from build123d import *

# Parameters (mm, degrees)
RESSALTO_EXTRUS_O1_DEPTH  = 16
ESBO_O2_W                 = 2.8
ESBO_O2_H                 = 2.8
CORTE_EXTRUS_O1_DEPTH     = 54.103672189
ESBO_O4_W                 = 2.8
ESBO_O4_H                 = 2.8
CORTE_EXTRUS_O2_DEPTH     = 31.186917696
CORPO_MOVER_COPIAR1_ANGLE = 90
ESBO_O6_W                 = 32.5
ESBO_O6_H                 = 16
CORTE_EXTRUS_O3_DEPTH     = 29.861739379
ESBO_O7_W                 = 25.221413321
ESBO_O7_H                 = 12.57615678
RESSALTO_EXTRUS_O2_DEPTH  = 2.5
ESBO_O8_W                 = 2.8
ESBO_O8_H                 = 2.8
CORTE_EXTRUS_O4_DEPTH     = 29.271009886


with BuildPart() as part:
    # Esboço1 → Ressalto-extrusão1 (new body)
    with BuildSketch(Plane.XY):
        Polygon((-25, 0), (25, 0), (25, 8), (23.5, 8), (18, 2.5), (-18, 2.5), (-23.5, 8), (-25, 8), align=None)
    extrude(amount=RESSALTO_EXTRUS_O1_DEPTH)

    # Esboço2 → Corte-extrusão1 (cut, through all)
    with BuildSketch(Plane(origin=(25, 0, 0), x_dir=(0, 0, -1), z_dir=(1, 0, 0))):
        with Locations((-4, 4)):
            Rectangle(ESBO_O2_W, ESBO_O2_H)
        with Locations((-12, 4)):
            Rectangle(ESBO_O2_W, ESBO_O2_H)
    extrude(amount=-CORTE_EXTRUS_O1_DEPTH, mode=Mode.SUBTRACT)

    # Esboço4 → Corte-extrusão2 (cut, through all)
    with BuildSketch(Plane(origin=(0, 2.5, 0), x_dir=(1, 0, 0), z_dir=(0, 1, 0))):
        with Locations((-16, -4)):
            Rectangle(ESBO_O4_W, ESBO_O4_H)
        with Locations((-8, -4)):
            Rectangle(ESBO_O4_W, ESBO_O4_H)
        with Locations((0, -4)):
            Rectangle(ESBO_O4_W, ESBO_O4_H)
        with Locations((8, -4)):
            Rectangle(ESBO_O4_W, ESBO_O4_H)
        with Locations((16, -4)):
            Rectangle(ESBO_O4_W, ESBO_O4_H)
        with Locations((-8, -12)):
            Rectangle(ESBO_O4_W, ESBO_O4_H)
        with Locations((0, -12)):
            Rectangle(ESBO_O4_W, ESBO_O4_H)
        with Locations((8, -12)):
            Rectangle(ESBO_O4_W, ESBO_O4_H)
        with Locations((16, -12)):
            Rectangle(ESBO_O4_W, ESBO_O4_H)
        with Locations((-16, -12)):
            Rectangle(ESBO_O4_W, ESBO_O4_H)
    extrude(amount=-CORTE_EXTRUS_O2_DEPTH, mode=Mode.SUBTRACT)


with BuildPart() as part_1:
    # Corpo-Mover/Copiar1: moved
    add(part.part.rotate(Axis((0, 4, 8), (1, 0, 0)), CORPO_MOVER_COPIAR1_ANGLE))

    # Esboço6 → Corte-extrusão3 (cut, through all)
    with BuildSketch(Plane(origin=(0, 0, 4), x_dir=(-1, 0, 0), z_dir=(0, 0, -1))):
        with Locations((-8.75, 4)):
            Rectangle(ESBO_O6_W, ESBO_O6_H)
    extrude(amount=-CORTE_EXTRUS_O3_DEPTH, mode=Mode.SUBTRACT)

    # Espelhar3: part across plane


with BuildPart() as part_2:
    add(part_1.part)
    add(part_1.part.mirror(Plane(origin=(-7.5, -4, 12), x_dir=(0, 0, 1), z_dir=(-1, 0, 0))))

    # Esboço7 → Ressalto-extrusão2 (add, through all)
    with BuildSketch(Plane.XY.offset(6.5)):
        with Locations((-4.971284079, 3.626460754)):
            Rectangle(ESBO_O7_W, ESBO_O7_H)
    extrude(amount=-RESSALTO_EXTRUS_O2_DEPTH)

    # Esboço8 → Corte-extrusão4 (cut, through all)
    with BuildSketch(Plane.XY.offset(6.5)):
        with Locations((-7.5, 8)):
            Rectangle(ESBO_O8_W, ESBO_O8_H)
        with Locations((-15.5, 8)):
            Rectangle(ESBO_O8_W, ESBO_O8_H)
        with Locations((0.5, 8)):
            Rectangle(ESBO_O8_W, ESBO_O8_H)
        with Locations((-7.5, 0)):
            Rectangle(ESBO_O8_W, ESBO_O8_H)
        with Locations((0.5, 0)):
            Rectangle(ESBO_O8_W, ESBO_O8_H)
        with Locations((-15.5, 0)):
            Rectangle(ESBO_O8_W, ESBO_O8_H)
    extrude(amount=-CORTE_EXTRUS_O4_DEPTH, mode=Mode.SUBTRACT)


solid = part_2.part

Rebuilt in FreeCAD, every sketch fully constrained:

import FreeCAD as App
import Part
import Sketcher

V = App.Vector
Q = App.Units.Quantity


def add_polygon(sketch, points):
    """Adds a closed chain of lines whose ends are joined by coincident constraints."""
    first, n = sketch.GeometryCount, len(points)
    for a, b in zip(points, points[1:] + points[:1]):
        sketch.addGeometry(Part.LineSegment(App.Vector(*a, 0), App.Vector(*b, 0)), False)
    for i in range(n):
        sketch.addConstraint(Sketcher.Constraint("Coincident", first + i, 2, first + (i + 1) % n, 1))

doc = App.newDocument("Part")
body = doc.addObject("PartDesign::Body", "Body")

# Sketch on XY plane
sketch1 = body.newObject("Sketcher::SketchObject", "Sketch")
sketch1.AttachmentSupport = (doc.getObject("XY_Plane"), [""])
sketch1.MapMode = "FlatFace"
add_polygon(sketch1, [(-25, 0), (25, 0), (25, 8), (23.5, 8), (18, 2.5), (-18, 2.5), (-23.5, 8), (-25, 8)])  # lines 0-7
sketch1.addConstraint([
    Sketcher.Constraint("Horizontal", 0),
    Sketcher.Constraint("Vertical", 1),
    Sketcher.Constraint("Horizontal", 2),
    Sketcher.Constraint("Horizontal", 4),
    Sketcher.Constraint("Horizontal", 6),
    Sketcher.Constraint("Vertical", 7),
    Sketcher.Constraint("Symmetric", 0, 2, 7, 2, -1, 1),
    Sketcher.Constraint("Symmetric", 2, 2, 5, 2, -2),
    Sketcher.Constraint("Perpendicular", 3, 5),
    Sketcher.Constraint("Equal", 3, 5),
    Sketcher.Constraint("DistanceX", 0, 1, 0, 2, Q("50 mm")),
    Sketcher.Constraint("DistanceX", 4, 2, 4, 1, Q("36 mm")),
    Sketcher.Constraint("DistanceY", 1, 1, 1, 2, Q("8 mm")),
    Sketcher.Constraint("DistanceX", 2, 2, 2, 1, Q("1.5 mm")),
])
pad1 = body.newObject("PartDesign::Pad", "Pad")
pad1.Profile = sketch1
pad1.Length = 16

# Sketch on YZ plane
sketch2 = body.newObject("Sketcher::SketchObject", "Sketch001")
sketch2.AttachmentSupport = (doc.getObject("YZ_Plane"), [""])
sketch2.MapMode = "FlatFace"
sketch2.AttachmentOffset = App.Placement(V(0, 0, 25), App.Rotation())
add_polygon(sketch2, [(5.4, 5.4), (2.6, 5.4), (2.6, 2.6), (5.4, 2.6)])  # lines 0-3
add_polygon(sketch2, [(5.4, 13.4), (2.6, 13.4), (2.6, 10.6), (5.4, 10.6)])  # lines 4-7
sketch2.addConstraint([
    Sketcher.Constraint("Horizontal", 0),
    Sketcher.Constraint("Vertical", 1),
    Sketcher.Constraint("Horizontal", 2),
    Sketcher.Constraint("Vertical", 3),
    Sketcher.Constraint("Horizontal", 4),
    Sketcher.Constraint("Vertical", 5),
    Sketcher.Constraint("Horizontal", 6),
    Sketcher.Constraint("Vertical", 7),
    Sketcher.Constraint("Vertical", 1, 2, 4, 2),
    Sketcher.Constraint("Vertical", 3, 2, 6, 2),
    Sketcher.Constraint("Equal", 6, 1),
    Sketcher.Constraint("Equal", 3, 5),
    Sketcher.Constraint("DistanceX", 0, 2, 0, 1, Q("2.8 mm")),
    Sketcher.Constraint("DistanceY", 0, 2, 4, 2, Q("8 mm")),
    Sketcher.Constraint("DistanceX", -1, 1, 0, 2, Q("2.6 mm")),
    Sketcher.Constraint("DistanceY", -1, 1, 0, 2, Q("5.4 mm")),
])
pocket1 = body.newObject("PartDesign::Pocket", "Pocket")
pocket1.Profile = sketch2
pocket1.Type = "ThroughAll"

# Sketch on XZ plane
sketch3 = body.newObject("Sketcher::SketchObject", "Sketch002")
sketch3.AttachmentSupport = (doc.getObject("XZ_Plane"), [""])
sketch3.MapMode = "FlatFace"
sketch3.AttachmentOffset = App.Placement(V(0, 0, -2.5), App.Rotation())
add_polygon(sketch3, [(-17.4, 2.6), (-17.4, 5.4), (-14.6, 5.4), (-14.6, 2.6)])  # lines 0-3
add_polygon(sketch3, [(-9.4, 2.6), (-9.4, 5.4), (-6.6, 5.4), (-6.6, 2.6)])  # lines 4-7
add_polygon(sketch3, [(-1.4, 2.6), (-1.4, 5.4), (1.4, 5.4), (1.4, 2.6)])  # lines 8-11
add_polygon(sketch3, [(6.6, 2.6), (6.6, 5.4), (9.4, 5.4), (9.4, 2.6)])  # lines 12-15
add_polygon(sketch3, [(14.6, 2.6), (14.6, 5.4), (17.4, 5.4), (17.4, 2.6)])  # lines 16-19
add_polygon(sketch3, [(-9.4, 10.6), (-9.4, 13.4), (-6.6, 13.4), (-6.6, 10.6)])  # lines 20-23
add_polygon(sketch3, [(-1.4, 10.6), (-1.4, 13.4), (1.4, 13.4), (1.4, 10.6)])  # lines 24-27
add_polygon(sketch3, [(6.6, 10.6), (6.6, 13.4), (9.4, 13.4), (9.4, 10.6)])  # lines 28-31
add_polygon(sketch3, [(14.6, 10.6), (14.6, 13.4), (17.4, 13.4), (17.4, 10.6)])  # lines 32-35
add_polygon(sketch3, [(-17.4, 10.6), (-17.4, 13.4), (-14.6, 13.4), (-14.6, 10.6)])  # lines 36-39
sketch3.addConstraint([
    Sketcher.Constraint("Vertical", 0),
    Sketcher.Constraint("Horizontal", 1),
    Sketcher.Constraint("Vertical", 2),
    Sketcher.Constraint("Horizontal", 3),
    Sketcher.Constraint("Vertical", 4),
    Sketcher.Constraint("Horizontal", 5),
    Sketcher.Constraint("Vertical", 6),
    Sketcher.Constraint("Horizontal", 7),
    Sketcher.Constraint("Vertical", 8),
    Sketcher.Constraint("Horizontal", 9),
    Sketcher.Constraint("Vertical", 10),
    Sketcher.Constraint("Horizontal", 11),
    Sketcher.Constraint("Vertical", 12),
    Sketcher.Constraint("Horizontal", 13),
    Sketcher.Constraint("Vertical", 14),
    Sketcher.Constraint("Horizontal", 15),
    Sketcher.Constraint("Vertical", 16),
    Sketcher.Constraint("Horizontal", 17),
    Sketcher.Constraint("Vertical", 18),
    Sketcher.Constraint("Horizontal", 19),
    Sketcher.Constraint("Vertical", 20),
    Sketcher.Constraint("Horizontal", 21),
    Sketcher.Constraint("Vertical", 22),
    Sketcher.Constraint("Horizontal", 23),
    Sketcher.Constraint("Vertical", 24),
    Sketcher.Constraint("Horizontal", 25),
    Sketcher.Constraint("Vertical", 26),
    Sketcher.Constraint("Horizontal", 27),
    Sketcher.Constraint("Vertical", 28),
    Sketcher.Constraint("Horizontal", 29),
    Sketcher.Constraint("Vertical", 30),
    Sketcher.Constraint("Horizontal", 31),
    Sketcher.Constraint("Vertical", 32),
    Sketcher.Constraint("Horizontal", 33),
    Sketcher.Constraint("Vertical", 34),
    Sketcher.Constraint("Horizontal", 35),
    Sketcher.Constraint("Vertical", 36),
    Sketcher.Constraint("Horizontal", 37),
    Sketcher.Constraint("Vertical", 38),
    Sketcher.Constraint("Horizontal", 39),
    Sketcher.Constraint("Symmetric", 5, 2, 12, 2, -2),
    Sketcher.Constraint("Symmetric", 7, 2, 14, 2, -2),
    Sketcher.Constraint("Symmetric", 1, 2, 16, 2, -2),
    Sketcher.Constraint("Symmetric", 3, 2, 18, 2, -2),
    Sketcher.Constraint("Symmetric", 21, 2, 28, 2, -2),
    Sketcher.Constraint("Symmetric", 23, 2, 30, 2, -2),
    Sketcher.Constraint("Symmetric", 33, 2, 36, 2, -2),
    Sketcher.Constraint("Symmetric", 35, 2, 38, 2, -2),
    Sketcher.Constraint("Horizontal", 1, 2, 4, 2),
    Sketcher.Constraint("Horizontal", 3, 2, 6, 2),
    Sketcher.Constraint("Horizontal", 5, 2, 8, 2),
    Sketcher.Constraint("Horizontal", 7, 2, 10, 2),
    Sketcher.Constraint("Horizontal", 21, 2, 24, 2),
    Sketcher.Constraint("Horizontal", 23, 2, 26, 2),
    Sketcher.Constraint("Horizontal", 29, 2, 32, 2),
    Sketcher.Constraint("Horizontal", 31, 2, 34, 2),
    Sketcher.Constraint("Vertical", 7, 2, 20, 2),
    Sketcher.Constraint("Vertical", 6, 2, 21, 2),
    Sketcher.Constraint("Vertical", 11, 2, 24, 2),
    Sketcher.Constraint("Vertical", 10, 2, 25, 2),
    Sketcher.Constraint("Vertical", 19, 2, 32, 2),
    Sketcher.Constraint("Vertical", 18, 2, 33, 2),
    Sketcher.Constraint("Equal", 3, 5),
    Sketcher.Constraint("Equal", 7, 9),
    Sketcher.Constraint("Equal", 39, 0),
    Sketcher.Constraint("Equal", 18, 20),
    Sketcher.Constraint("DistanceX", 1, 1, 1, 2, Q("2.8 mm")),
    Sketcher.Constraint("DistanceX", 0, 2, 4, 2, Q("8 mm")),
    Sketcher.Constraint("DistanceX", 4, 2, 8, 2, Q("8 mm")),
    Sketcher.Constraint("DistanceX", 8, 2, 12, 2, Q("8 mm")),
    Sketcher.Constraint("DistanceY", 4, 2, 20, 2, Q("8 mm")),
    Sketcher.Constraint("DistanceY", -1, 1, 0, 2, Q("5.4 mm")),
])
pocket2 = body.newObject("PartDesign::Pocket", "Pocket001")
pocket2.Profile = sketch3
pocket2.Type = "ThroughAll"
pocket2.Reversed = True
body2 = doc.addObject("PartDesign::Body", "Body001")
doc.recompute()

body.Placement = App.Placement(V(0, 12, 4), App.Rotation(V(1, 0, 0), 90))
boolean = body2.newObject("PartDesign::Boolean", "Boolean")
boolean.Type = "Fuse"
boolean.addObjects([body])

# Sketch on XY plane
sketch4 = body2.newObject("Sketcher::SketchObject", "Sketch003")
sketch4.AttachmentSupport = (doc.getObject("XY_Plane001"), [""])
sketch4.MapMode = "FlatFace"
sketch4.AttachmentOffset = App.Placement(V(0, 0, 4), App.Rotation())
add_polygon(sketch4, [(25, 12), (25, -4), (-8, -4), (-8, 12)])  # lines 0-3
sketch4.addConstraint([
    Sketcher.Constraint("Vertical", 0),
    Sketcher.Constraint("Horizontal", 1),
    Sketcher.Constraint("Vertical", 2),
    Sketcher.Constraint("Horizontal", 3),
    Sketcher.Constraint("DistanceY", 0, 2, 0, 1, Q("16 mm")),
    Sketcher.Constraint("DistanceX", 1, 2, 1, 1, Q("32.5 mm")),
    Sketcher.Constraint("DistanceX", -1, 1, 0, 2, Q("25 mm")),
    Sketcher.Constraint("DistanceY", 0, 2, -1, 1, Q("4 mm")),
])
pocket3 = body2.newObject("PartDesign::Pocket", "Pocket002")
pocket3.Profile = sketch4
pocket3.Type = "ThroughAll"
pocket3.Reversed = True
body3 = doc.addObject("PartDesign::Body", "Body002")
doc.recompute()

body3.BaseFeature = body2
doc.recompute()

mirroring = doc.addObject("Part::Mirroring", "Mirroring")
mirroring.Source = body2
mirroring.Base = V(-7.5, -4, 12)
mirroring.Normal = V(-1, 0, 0)
body4 = doc.addObject("PartDesign::Body", "Body003")
body4.BaseFeature = mirroring
boolean2 = body3.newObject("PartDesign::Boolean", "Boolean001")
boolean2.Type = "Fuse"
boolean2.addObjects([body4])
doc.recompute()

# Sketch on XY plane
sketch5 = body3.newObject("Sketcher::SketchObject", "Sketch004")
sketch5.AttachmentSupport = (doc.getObject("XY_Plane002"), [""])
sketch5.MapMode = "FlatFace"
sketch5.AttachmentOffset = App.Placement(V(0, 0, 6.5), App.Rotation())
add_polygon(sketch5, [(-18, 10), (-18, -3), (8, -3), (8, 10)])  # lines 0-3
sketch5.addConstraint([
    Sketcher.Constraint("Vertical", 0),
    Sketcher.Constraint("Horizontal", 1),
    Sketcher.Constraint("Vertical", 2),
    Sketcher.Constraint("Horizontal", 3),
    Sketcher.Constraint("DistanceX", 1, 1, 1, 2, Q("25.221413 mm")),
    Sketcher.Constraint("DistanceY", 0, 2, 0, 1, Q("12.576157 mm")),
    Sketcher.Constraint("DistanceX", 0, 2, -1, 1, Q("17.581991 mm")),
    Sketcher.Constraint("DistanceY", -1, 1, 2, 2, Q("9.914539 mm")),
])
pad2 = body3.newObject("PartDesign::Pad", "Pad001")
pad2.Profile = sketch5
pad2.Type = "UpToLast"
pad2.Reversed = True

# Sketch on XY plane
sketch6 = body3.newObject("Sketcher::SketchObject", "Sketch005")
sketch6.AttachmentSupport = (doc.getObject("XY_Plane002"), [""])
sketch6.MapMode = "FlatFace"
sketch6.AttachmentOffset = App.Placement(V(0, 0, 6.5), App.Rotation())
add_polygon(sketch6, [(-8.9, 9.4), (-8.9, 6.6), (-6.1, 6.6), (-6.1, 9.4)])  # lines 0-3
add_polygon(sketch6, [(-16.9, 9.4), (-16.9, 6.6), (-14.1, 6.6), (-14.1, 9.4)])  # lines 4-7
add_polygon(sketch6, [(-0.9, 9.4), (-0.9, 6.6), (1.9, 6.6), (1.9, 9.4)])  # lines 8-11
add_polygon(sketch6, [(-8.9, 1.4), (-8.9, -1.4), (-6.1, -1.4), (-6.1, 1.4)])  # lines 12-15
add_polygon(sketch6, [(-0.9, 1.4), (-0.9, -1.4), (1.9, -1.4), (1.9, 1.4)])  # lines 16-19
add_polygon(sketch6, [(-16.9, 1.4), (-16.9, -1.4), (-14.1, -1.4), (-14.1, 1.4)])  # lines 20-23
sketch6.addConstraint([
    Sketcher.Constraint("Vertical", 0),
    Sketcher.Constraint("Horizontal", 1),
    Sketcher.Constraint("Vertical", 2),
    Sketcher.Constraint("Horizontal", 3),
    Sketcher.Constraint("Vertical", 4),
    Sketcher.Constraint("Horizontal", 5),
    Sketcher.Constraint("Vertical", 6),
    Sketcher.Constraint("Horizontal", 7),
    Sketcher.Constraint("Vertical", 8),
    Sketcher.Constraint("Horizontal", 9),
    Sketcher.Constraint("Vertical", 10),
    Sketcher.Constraint("Horizontal", 11),
    Sketcher.Constraint("Vertical", 12),
    Sketcher.Constraint("Horizontal", 13),
    Sketcher.Constraint("Vertical", 14),
    Sketcher.Constraint("Horizontal", 15),
    Sketcher.Constraint("Vertical", 16),
    Sketcher.Constraint("Horizontal", 17),
    Sketcher.Constraint("Vertical", 18),
    Sketcher.Constraint("Horizontal", 19),
    Sketcher.Constraint("Vertical", 20),
    Sketcher.Constraint("Horizontal", 21),
    Sketcher.Constraint("Vertical", 22),
    Sketcher.Constraint("Horizontal", 23),
    Sketcher.Constraint("Horizontal", 1, 2, 4, 2),
    Sketcher.Constraint("Horizontal", 3, 2, 6, 2),
    Sketcher.Constraint("Horizontal", 5, 2, 8, 2),
    Sketcher.Constraint("Horizontal", 7, 2, 10, 2),
    Sketcher.Constraint("Horizontal", 13, 2, 16, 2),
    Sketcher.Constraint("Horizontal", 15, 2, 18, 2),
    Sketcher.Constraint("Horizontal", 17, 2, 20, 2),
    Sketcher.Constraint("Horizontal", 19, 2, 22, 2),
    Sketcher.Constraint("Vertical", 3, 2, 12, 2),
    Sketcher.Constraint("Vertical", 2, 2, 13, 2),
    Sketcher.Constraint("Vertical", 11, 2, 16, 2),
    Sketcher.Constraint("Vertical", 10, 2, 17, 2),
    Sketcher.Constraint("Vertical", 7, 2, 20, 2),
    Sketcher.Constraint("Vertical", 6, 2, 21, 2),
    Sketcher.Constraint("Equal", 3, 5),
    Sketcher.Constraint("Equal", 7, 9),
    Sketcher.Constraint("Equal", 23, 0),
    Sketcher.Constraint("Equal", 10, 12),
    Sketcher.Constraint("DistanceX", 1, 1, 1, 2, Q("2.8 mm")),
    Sketcher.Constraint("DistanceX", 4, 2, 0, 2, Q("8 mm")),
    Sketcher.Constraint("DistanceX", 0, 2, 8, 2, Q("8 mm")),
    Sketcher.Constraint("DistanceY", 12, 2, 0, 2, Q("8 mm")),
    Sketcher.Constraint("DistanceX", 0, 2, -1, 1, Q("8.9 mm")),
    Sketcher.Constraint("DistanceY", -1, 1, 0, 2, Q("6.6 mm")),
])
pocket4 = body3.newObject("PartDesign::Pocket", "Pocket003")
pocket4.Profile = sketch6
pocket4.Type = "ThroughAll"
mirroring.Visibility = False

doc.recompute()
